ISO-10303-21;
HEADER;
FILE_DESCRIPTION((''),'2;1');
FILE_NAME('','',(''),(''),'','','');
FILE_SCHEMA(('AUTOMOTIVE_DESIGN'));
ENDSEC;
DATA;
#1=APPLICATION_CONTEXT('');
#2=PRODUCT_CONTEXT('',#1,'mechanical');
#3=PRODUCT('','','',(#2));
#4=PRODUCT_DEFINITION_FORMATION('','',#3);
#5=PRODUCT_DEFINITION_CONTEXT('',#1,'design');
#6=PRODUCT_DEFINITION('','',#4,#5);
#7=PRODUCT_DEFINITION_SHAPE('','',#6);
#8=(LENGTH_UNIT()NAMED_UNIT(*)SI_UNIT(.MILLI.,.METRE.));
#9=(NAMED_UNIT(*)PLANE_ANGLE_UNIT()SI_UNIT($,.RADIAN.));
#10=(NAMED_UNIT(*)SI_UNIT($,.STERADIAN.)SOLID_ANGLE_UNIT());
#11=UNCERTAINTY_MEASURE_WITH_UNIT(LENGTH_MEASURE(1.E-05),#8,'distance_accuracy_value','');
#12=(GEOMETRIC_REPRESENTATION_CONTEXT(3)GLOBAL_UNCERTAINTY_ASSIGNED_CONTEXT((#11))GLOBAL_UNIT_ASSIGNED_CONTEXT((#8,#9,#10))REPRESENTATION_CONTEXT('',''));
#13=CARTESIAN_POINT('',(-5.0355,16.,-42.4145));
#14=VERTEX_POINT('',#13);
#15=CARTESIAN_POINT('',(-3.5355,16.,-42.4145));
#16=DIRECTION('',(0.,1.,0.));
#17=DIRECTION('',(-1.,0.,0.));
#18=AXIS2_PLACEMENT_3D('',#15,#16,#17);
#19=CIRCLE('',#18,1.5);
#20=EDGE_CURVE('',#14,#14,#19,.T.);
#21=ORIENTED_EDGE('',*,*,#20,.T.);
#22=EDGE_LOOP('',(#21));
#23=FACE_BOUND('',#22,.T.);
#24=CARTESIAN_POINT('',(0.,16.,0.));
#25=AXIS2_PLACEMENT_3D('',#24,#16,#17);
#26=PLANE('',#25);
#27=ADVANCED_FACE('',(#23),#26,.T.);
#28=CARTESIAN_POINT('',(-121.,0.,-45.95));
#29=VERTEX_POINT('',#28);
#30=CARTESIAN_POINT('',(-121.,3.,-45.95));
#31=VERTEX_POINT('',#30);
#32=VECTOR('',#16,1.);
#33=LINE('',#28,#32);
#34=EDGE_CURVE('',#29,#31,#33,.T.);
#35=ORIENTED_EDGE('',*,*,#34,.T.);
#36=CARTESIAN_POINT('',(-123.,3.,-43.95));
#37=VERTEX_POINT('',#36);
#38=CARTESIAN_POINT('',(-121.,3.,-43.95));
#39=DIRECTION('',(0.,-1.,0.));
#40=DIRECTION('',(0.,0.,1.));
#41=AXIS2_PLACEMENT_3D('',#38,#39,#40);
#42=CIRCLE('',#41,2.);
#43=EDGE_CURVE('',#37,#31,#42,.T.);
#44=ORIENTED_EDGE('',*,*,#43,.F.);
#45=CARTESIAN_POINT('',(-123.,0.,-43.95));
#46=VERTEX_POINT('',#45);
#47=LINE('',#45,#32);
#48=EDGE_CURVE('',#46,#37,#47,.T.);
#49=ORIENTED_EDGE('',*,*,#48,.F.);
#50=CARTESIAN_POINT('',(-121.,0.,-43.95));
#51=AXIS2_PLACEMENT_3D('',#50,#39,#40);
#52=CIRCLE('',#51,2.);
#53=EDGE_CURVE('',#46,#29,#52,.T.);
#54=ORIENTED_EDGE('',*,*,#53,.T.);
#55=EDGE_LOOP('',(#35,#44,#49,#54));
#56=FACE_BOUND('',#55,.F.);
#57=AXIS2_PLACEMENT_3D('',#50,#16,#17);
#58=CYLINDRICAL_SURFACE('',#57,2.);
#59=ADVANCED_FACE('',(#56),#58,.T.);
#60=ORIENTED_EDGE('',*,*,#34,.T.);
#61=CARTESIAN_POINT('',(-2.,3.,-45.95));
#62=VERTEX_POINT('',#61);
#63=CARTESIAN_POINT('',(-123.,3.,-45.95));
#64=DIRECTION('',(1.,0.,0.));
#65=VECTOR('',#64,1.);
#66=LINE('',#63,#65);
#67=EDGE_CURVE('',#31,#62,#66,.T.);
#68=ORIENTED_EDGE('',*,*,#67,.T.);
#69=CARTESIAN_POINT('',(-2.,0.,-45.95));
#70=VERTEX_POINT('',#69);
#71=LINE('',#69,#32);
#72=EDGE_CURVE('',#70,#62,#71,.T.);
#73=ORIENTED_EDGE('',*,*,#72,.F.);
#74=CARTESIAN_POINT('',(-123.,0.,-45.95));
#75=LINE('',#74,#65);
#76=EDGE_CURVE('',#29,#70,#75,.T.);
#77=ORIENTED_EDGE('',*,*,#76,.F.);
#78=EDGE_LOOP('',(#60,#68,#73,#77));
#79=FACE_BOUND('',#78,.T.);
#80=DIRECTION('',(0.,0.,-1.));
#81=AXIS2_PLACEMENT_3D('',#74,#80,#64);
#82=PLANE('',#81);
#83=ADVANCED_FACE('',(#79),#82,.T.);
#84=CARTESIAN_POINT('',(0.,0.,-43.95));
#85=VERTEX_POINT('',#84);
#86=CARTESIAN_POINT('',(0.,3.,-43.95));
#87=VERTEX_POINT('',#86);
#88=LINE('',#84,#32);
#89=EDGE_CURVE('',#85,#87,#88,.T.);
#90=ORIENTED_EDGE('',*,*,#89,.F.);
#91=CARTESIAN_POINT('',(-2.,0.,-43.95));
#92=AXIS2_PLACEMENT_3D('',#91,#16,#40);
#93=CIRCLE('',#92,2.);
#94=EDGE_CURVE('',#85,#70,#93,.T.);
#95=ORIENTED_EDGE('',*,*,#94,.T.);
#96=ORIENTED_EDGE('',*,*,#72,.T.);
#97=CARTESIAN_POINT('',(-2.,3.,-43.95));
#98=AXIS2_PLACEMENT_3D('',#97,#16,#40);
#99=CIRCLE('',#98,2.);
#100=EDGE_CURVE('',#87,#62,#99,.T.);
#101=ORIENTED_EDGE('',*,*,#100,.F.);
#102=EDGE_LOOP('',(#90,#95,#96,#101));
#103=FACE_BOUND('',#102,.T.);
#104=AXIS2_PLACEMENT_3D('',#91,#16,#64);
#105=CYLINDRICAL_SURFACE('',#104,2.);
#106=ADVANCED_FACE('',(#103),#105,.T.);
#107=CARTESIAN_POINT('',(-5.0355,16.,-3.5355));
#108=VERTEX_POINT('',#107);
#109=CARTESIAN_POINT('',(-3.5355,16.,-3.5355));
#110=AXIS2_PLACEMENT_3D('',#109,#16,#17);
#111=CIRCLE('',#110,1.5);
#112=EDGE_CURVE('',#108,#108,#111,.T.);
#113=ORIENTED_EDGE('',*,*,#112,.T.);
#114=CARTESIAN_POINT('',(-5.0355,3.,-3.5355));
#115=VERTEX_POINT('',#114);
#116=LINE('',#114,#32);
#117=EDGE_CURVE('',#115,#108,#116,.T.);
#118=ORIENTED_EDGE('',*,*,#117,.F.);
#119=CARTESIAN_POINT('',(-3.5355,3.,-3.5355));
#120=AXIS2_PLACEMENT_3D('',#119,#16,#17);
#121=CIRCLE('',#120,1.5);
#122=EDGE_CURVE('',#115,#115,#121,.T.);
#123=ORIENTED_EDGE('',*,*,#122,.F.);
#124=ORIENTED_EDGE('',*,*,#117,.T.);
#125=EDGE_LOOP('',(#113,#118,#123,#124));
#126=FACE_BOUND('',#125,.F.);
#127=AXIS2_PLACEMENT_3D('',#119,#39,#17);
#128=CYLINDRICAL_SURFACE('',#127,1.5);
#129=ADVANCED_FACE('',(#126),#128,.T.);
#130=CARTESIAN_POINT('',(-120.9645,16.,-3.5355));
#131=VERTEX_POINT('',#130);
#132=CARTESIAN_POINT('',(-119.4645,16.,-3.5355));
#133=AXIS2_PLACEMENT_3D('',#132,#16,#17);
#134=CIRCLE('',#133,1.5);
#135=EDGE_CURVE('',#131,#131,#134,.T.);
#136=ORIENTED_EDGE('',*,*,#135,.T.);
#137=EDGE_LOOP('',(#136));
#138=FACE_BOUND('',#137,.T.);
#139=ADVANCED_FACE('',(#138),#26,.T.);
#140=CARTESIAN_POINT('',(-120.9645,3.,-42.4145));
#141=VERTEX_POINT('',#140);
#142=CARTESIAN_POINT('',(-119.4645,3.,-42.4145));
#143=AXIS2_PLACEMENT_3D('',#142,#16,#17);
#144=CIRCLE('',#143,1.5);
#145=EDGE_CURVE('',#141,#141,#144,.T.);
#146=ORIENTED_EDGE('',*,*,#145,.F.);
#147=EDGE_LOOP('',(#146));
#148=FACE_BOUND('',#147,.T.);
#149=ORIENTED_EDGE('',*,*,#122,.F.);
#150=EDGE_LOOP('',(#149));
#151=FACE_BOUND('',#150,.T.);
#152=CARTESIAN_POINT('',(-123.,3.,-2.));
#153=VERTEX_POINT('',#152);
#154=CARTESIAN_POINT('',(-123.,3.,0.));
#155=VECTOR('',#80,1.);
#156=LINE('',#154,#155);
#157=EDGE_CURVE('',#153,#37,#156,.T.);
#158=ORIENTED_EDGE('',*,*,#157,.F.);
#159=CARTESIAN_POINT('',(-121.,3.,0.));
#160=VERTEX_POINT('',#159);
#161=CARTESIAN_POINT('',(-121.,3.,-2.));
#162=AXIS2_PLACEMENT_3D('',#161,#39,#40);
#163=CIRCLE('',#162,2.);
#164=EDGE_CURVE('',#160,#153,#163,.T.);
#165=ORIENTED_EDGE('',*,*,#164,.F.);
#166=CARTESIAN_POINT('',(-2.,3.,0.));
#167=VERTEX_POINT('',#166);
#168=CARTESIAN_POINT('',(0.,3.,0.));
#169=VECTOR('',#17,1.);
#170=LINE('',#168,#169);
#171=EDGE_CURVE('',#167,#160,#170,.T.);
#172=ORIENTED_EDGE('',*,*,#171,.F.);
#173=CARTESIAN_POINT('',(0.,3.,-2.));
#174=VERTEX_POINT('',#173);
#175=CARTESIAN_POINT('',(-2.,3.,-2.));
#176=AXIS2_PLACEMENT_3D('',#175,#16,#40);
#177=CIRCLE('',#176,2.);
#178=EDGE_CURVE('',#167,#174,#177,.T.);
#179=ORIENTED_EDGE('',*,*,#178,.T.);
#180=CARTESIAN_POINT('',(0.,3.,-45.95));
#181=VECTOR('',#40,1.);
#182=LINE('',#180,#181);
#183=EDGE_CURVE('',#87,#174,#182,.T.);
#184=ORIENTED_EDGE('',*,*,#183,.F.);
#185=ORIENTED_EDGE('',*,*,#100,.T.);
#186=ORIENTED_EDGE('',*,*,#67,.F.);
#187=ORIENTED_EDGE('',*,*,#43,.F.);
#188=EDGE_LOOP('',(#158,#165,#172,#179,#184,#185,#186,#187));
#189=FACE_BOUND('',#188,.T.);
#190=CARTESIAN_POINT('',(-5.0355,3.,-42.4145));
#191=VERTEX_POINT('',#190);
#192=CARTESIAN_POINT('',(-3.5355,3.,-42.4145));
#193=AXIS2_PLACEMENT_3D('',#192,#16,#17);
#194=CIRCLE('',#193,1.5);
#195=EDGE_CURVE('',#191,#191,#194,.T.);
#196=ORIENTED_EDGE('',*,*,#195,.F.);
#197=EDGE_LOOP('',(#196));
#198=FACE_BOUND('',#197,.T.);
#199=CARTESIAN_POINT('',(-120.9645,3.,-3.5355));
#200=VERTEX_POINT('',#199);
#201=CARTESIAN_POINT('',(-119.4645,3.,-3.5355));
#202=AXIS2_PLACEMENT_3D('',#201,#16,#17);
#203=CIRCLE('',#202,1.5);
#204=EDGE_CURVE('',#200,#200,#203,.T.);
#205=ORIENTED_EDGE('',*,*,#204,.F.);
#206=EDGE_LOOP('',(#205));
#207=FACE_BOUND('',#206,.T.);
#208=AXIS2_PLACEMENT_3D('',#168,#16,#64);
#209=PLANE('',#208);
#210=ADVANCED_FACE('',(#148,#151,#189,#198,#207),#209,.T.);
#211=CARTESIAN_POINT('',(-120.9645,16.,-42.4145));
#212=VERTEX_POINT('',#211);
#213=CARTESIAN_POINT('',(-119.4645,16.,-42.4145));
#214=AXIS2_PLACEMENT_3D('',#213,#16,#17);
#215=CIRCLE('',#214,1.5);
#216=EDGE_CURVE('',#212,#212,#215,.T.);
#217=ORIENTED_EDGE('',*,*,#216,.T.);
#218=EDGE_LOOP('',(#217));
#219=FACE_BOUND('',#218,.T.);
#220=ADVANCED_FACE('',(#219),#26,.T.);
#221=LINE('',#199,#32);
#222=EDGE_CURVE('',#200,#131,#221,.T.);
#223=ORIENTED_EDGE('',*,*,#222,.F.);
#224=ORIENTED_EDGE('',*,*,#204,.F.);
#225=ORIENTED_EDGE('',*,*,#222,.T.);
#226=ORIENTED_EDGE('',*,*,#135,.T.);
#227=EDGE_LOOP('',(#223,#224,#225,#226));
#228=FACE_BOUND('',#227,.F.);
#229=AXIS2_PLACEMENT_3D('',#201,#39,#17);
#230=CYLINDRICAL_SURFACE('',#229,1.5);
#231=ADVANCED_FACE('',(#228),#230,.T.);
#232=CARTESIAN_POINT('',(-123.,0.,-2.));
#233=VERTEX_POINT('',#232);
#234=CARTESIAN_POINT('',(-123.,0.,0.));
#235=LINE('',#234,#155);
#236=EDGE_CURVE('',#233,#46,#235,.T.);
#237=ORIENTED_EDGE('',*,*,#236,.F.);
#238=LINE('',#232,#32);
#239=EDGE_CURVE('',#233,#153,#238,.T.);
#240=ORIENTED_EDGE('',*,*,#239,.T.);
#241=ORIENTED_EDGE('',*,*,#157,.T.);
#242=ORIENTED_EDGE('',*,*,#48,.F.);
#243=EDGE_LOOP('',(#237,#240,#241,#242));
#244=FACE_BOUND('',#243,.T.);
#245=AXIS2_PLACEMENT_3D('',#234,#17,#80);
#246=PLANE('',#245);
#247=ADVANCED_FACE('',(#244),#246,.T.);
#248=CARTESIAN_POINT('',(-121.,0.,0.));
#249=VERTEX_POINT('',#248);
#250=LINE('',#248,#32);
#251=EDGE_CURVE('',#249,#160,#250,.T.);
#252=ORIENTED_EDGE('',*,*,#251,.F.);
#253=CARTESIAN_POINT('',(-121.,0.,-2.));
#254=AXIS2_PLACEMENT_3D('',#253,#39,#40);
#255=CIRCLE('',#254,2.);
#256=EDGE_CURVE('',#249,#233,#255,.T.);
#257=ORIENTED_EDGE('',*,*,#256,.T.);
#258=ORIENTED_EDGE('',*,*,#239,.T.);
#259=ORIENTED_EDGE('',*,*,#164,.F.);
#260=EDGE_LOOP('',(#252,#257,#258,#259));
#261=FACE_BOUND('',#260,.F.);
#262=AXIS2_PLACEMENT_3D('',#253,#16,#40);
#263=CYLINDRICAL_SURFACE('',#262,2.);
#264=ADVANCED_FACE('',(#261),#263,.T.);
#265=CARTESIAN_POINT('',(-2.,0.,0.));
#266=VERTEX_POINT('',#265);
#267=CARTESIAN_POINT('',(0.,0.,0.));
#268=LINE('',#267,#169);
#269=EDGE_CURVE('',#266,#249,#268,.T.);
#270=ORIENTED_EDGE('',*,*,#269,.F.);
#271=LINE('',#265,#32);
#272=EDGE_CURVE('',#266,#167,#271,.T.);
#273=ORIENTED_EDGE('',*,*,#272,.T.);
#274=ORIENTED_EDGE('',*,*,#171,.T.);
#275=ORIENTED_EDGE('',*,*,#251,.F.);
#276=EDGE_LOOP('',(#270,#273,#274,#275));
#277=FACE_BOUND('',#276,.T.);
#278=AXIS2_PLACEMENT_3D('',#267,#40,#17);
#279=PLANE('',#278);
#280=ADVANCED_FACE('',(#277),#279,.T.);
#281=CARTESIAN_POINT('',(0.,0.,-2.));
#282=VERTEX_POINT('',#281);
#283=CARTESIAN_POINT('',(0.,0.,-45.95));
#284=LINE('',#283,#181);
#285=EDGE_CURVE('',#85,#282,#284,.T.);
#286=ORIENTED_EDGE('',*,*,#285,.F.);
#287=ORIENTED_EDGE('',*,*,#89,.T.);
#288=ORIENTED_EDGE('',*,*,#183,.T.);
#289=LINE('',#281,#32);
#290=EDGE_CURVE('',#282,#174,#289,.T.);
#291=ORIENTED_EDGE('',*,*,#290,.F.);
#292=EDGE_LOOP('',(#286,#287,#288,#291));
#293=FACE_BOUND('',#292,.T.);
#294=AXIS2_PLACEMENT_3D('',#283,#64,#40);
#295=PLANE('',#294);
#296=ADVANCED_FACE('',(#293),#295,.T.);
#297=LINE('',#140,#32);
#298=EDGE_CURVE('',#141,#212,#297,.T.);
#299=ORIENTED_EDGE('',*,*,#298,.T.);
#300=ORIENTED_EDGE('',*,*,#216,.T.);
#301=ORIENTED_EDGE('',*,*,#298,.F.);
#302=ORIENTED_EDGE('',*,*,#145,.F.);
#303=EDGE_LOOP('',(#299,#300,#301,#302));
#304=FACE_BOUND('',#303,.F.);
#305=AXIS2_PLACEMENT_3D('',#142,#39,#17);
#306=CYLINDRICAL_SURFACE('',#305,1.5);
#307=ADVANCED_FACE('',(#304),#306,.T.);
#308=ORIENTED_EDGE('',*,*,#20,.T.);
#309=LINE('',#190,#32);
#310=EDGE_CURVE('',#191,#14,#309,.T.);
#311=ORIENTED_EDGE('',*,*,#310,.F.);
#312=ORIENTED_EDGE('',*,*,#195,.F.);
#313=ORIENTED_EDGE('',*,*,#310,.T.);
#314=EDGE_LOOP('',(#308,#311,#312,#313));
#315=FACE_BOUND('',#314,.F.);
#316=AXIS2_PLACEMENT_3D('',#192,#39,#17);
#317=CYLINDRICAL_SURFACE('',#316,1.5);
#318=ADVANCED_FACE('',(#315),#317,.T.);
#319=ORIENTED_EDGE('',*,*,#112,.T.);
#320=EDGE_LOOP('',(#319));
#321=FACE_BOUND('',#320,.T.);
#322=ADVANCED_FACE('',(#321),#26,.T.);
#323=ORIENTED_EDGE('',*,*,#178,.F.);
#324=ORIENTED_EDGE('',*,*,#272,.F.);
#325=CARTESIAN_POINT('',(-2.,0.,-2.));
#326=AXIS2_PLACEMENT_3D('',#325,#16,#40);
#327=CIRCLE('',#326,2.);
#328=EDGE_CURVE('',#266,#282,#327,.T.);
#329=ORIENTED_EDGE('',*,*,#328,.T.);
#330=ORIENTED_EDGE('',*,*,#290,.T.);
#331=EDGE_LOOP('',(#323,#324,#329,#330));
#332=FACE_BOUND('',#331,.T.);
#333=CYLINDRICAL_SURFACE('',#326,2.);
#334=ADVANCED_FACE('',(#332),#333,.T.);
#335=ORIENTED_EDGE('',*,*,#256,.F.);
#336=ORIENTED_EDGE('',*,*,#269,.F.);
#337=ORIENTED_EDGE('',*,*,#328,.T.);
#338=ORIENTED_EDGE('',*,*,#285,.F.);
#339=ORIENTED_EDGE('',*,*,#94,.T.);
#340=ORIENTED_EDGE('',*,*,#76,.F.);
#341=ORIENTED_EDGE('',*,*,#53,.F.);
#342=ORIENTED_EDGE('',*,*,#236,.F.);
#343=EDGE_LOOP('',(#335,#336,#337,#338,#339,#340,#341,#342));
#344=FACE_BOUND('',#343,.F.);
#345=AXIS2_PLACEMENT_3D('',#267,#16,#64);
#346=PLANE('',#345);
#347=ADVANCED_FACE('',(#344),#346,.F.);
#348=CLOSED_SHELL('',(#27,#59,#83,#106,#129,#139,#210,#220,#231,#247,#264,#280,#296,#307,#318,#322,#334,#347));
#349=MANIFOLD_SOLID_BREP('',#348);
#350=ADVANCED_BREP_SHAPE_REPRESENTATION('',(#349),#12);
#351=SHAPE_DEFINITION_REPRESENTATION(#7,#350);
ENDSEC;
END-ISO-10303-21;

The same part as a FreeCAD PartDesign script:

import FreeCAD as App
import Part
import Sketcher
Q = App.Units.Quantity


def edges_at(feature, points):
    """Names of the edges that pass closest to the given points."""
    edges = feature.Shape.Edges
    near = lambda p: min(range(len(edges)), key=lambda i: edges[i].distToShape(Part.Vertex(*p))[0])
    return sorted({f"Edge{near(p) + 1}" for p in points})


def add_polygon(sketch, points):
    """Adds a closed chain of lines whose ends are joined by coincident constraints."""
    first, n = sketch.GeometryCount, len(points)
    for a, b in zip(points, points[1:] + points[:1]):
        sketch.addGeometry(Part.LineSegment(App.Vector(*a, 0), App.Vector(*b, 0)), False)
    for i in range(n):
        sketch.addConstraint(Sketcher.Constraint("Coincident", first + i, 2, first + (i + 1) % n, 1))

doc = App.newDocument("Part")
body = doc.addObject("PartDesign::Body", "Body")

# Sketch on XZ plane
sketch1 = body.newObject("Sketcher::SketchObject", "Sketch")
sketch1.AttachmentSupport = (doc.getObject("XZ_Plane"), [""])
sketch1.MapMode = "FlatFace"
add_polygon(sketch1, [(-123, 0), (0, 0), (0, -45.95), (-123, -45.95)])  # lines 0-3
sketch1.addConstraint([
    Sketcher.Constraint("Horizontal", 0),
    Sketcher.Constraint("Vertical", 1),
    Sketcher.Constraint("Horizontal", 2),
    Sketcher.Constraint("Vertical", 3),
    Sketcher.Constraint("Coincident", 0, 2, -1, 1),
    Sketcher.Constraint("DistanceX", 0, 1, 0, 2, Q("123 mm")),
    Sketcher.Constraint("DistanceY", 1, 2, 1, 1, Q("45.95 mm")),
])
pad1 = body.newObject("PartDesign::Pad", "Pad")
pad1.Profile = sketch1
pad1.Length = 3
pad1.Reversed = True

# Sketch on XZ plane
sketch2 = body.newObject("Sketcher::SketchObject", "Sketch001")
sketch2.AttachmentSupport = (doc.getObject("XZ_Plane"), [""])
sketch2.MapMode = "FlatFace"
sketch2.AttachmentOffset = App.Placement(App.Vector(0, 0, -3), App.Rotation())
sketch2.addGeometry([
    Part.Circle(App.Vector(-119.4645, -42.4145, 0), App.Vector(0, 0, 1), 1.5),
    Part.Circle(App.Vector(-3.5355, -42.4145, 0), App.Vector(0, 0, 1), 1.5),
    Part.Circle(App.Vector(-119.4645, -3.5355, 0), App.Vector(0, 0, 1), 1.5),
    Part.Circle(App.Vector(-3.5355, -3.5355, 0), App.Vector(0, 0, 1), 1.5),
], False)
sketch2.addConstraint([
    Sketcher.Constraint("Equal", 0, 1),
    Sketcher.Constraint("Equal", 1, 2),
    Sketcher.Constraint("Equal", 2, 3),
    Sketcher.Constraint("Horizontal", 0, 3, 1, 3),
    Sketcher.Constraint("Horizontal", 2, 3, 3, 3),
    Sketcher.Constraint("Vertical", 0, 3, 2, 3),
    Sketcher.Constraint("Vertical", 1, 3, 3, 3),
    Sketcher.Constraint("Diameter", 0, Q("3 mm")),
    Sketcher.Constraint("DistanceX", 0, 3, 1, 3, Q("115.929 mm")),
    Sketcher.Constraint("DistanceY", 0, 3, 2, 3, Q("38.879 mm")),
    Sketcher.Constraint("DistanceX", 0, 3, -1, 1, Q("119.4645 mm")),
    Sketcher.Constraint("DistanceY", 0, 3, -1, 1, Q("42.4145 mm")),
])
pad2 = body.newObject("PartDesign::Pad", "Pad001")
pad2.Profile = sketch2
pad2.Length = 13
pad2.Reversed = True
doc.recompute()

fillet = body.newObject("PartDesign::Fillet", "Fillet")
fillet.Base = (pad2, edges_at(pad2, [(-123, 1.5, 0), (0, 1.5, 0)]))
fillet.Radius = 2
doc.recompute()

fillet2 = body.newObject("PartDesign::Fillet", "Fillet001")
fillet2.Base = (fillet, edges_at(fillet, [(0, 1.5, -45.95), (-123, 1.5, -45.95)]))
fillet2.Radius = 2

doc.recompute()
